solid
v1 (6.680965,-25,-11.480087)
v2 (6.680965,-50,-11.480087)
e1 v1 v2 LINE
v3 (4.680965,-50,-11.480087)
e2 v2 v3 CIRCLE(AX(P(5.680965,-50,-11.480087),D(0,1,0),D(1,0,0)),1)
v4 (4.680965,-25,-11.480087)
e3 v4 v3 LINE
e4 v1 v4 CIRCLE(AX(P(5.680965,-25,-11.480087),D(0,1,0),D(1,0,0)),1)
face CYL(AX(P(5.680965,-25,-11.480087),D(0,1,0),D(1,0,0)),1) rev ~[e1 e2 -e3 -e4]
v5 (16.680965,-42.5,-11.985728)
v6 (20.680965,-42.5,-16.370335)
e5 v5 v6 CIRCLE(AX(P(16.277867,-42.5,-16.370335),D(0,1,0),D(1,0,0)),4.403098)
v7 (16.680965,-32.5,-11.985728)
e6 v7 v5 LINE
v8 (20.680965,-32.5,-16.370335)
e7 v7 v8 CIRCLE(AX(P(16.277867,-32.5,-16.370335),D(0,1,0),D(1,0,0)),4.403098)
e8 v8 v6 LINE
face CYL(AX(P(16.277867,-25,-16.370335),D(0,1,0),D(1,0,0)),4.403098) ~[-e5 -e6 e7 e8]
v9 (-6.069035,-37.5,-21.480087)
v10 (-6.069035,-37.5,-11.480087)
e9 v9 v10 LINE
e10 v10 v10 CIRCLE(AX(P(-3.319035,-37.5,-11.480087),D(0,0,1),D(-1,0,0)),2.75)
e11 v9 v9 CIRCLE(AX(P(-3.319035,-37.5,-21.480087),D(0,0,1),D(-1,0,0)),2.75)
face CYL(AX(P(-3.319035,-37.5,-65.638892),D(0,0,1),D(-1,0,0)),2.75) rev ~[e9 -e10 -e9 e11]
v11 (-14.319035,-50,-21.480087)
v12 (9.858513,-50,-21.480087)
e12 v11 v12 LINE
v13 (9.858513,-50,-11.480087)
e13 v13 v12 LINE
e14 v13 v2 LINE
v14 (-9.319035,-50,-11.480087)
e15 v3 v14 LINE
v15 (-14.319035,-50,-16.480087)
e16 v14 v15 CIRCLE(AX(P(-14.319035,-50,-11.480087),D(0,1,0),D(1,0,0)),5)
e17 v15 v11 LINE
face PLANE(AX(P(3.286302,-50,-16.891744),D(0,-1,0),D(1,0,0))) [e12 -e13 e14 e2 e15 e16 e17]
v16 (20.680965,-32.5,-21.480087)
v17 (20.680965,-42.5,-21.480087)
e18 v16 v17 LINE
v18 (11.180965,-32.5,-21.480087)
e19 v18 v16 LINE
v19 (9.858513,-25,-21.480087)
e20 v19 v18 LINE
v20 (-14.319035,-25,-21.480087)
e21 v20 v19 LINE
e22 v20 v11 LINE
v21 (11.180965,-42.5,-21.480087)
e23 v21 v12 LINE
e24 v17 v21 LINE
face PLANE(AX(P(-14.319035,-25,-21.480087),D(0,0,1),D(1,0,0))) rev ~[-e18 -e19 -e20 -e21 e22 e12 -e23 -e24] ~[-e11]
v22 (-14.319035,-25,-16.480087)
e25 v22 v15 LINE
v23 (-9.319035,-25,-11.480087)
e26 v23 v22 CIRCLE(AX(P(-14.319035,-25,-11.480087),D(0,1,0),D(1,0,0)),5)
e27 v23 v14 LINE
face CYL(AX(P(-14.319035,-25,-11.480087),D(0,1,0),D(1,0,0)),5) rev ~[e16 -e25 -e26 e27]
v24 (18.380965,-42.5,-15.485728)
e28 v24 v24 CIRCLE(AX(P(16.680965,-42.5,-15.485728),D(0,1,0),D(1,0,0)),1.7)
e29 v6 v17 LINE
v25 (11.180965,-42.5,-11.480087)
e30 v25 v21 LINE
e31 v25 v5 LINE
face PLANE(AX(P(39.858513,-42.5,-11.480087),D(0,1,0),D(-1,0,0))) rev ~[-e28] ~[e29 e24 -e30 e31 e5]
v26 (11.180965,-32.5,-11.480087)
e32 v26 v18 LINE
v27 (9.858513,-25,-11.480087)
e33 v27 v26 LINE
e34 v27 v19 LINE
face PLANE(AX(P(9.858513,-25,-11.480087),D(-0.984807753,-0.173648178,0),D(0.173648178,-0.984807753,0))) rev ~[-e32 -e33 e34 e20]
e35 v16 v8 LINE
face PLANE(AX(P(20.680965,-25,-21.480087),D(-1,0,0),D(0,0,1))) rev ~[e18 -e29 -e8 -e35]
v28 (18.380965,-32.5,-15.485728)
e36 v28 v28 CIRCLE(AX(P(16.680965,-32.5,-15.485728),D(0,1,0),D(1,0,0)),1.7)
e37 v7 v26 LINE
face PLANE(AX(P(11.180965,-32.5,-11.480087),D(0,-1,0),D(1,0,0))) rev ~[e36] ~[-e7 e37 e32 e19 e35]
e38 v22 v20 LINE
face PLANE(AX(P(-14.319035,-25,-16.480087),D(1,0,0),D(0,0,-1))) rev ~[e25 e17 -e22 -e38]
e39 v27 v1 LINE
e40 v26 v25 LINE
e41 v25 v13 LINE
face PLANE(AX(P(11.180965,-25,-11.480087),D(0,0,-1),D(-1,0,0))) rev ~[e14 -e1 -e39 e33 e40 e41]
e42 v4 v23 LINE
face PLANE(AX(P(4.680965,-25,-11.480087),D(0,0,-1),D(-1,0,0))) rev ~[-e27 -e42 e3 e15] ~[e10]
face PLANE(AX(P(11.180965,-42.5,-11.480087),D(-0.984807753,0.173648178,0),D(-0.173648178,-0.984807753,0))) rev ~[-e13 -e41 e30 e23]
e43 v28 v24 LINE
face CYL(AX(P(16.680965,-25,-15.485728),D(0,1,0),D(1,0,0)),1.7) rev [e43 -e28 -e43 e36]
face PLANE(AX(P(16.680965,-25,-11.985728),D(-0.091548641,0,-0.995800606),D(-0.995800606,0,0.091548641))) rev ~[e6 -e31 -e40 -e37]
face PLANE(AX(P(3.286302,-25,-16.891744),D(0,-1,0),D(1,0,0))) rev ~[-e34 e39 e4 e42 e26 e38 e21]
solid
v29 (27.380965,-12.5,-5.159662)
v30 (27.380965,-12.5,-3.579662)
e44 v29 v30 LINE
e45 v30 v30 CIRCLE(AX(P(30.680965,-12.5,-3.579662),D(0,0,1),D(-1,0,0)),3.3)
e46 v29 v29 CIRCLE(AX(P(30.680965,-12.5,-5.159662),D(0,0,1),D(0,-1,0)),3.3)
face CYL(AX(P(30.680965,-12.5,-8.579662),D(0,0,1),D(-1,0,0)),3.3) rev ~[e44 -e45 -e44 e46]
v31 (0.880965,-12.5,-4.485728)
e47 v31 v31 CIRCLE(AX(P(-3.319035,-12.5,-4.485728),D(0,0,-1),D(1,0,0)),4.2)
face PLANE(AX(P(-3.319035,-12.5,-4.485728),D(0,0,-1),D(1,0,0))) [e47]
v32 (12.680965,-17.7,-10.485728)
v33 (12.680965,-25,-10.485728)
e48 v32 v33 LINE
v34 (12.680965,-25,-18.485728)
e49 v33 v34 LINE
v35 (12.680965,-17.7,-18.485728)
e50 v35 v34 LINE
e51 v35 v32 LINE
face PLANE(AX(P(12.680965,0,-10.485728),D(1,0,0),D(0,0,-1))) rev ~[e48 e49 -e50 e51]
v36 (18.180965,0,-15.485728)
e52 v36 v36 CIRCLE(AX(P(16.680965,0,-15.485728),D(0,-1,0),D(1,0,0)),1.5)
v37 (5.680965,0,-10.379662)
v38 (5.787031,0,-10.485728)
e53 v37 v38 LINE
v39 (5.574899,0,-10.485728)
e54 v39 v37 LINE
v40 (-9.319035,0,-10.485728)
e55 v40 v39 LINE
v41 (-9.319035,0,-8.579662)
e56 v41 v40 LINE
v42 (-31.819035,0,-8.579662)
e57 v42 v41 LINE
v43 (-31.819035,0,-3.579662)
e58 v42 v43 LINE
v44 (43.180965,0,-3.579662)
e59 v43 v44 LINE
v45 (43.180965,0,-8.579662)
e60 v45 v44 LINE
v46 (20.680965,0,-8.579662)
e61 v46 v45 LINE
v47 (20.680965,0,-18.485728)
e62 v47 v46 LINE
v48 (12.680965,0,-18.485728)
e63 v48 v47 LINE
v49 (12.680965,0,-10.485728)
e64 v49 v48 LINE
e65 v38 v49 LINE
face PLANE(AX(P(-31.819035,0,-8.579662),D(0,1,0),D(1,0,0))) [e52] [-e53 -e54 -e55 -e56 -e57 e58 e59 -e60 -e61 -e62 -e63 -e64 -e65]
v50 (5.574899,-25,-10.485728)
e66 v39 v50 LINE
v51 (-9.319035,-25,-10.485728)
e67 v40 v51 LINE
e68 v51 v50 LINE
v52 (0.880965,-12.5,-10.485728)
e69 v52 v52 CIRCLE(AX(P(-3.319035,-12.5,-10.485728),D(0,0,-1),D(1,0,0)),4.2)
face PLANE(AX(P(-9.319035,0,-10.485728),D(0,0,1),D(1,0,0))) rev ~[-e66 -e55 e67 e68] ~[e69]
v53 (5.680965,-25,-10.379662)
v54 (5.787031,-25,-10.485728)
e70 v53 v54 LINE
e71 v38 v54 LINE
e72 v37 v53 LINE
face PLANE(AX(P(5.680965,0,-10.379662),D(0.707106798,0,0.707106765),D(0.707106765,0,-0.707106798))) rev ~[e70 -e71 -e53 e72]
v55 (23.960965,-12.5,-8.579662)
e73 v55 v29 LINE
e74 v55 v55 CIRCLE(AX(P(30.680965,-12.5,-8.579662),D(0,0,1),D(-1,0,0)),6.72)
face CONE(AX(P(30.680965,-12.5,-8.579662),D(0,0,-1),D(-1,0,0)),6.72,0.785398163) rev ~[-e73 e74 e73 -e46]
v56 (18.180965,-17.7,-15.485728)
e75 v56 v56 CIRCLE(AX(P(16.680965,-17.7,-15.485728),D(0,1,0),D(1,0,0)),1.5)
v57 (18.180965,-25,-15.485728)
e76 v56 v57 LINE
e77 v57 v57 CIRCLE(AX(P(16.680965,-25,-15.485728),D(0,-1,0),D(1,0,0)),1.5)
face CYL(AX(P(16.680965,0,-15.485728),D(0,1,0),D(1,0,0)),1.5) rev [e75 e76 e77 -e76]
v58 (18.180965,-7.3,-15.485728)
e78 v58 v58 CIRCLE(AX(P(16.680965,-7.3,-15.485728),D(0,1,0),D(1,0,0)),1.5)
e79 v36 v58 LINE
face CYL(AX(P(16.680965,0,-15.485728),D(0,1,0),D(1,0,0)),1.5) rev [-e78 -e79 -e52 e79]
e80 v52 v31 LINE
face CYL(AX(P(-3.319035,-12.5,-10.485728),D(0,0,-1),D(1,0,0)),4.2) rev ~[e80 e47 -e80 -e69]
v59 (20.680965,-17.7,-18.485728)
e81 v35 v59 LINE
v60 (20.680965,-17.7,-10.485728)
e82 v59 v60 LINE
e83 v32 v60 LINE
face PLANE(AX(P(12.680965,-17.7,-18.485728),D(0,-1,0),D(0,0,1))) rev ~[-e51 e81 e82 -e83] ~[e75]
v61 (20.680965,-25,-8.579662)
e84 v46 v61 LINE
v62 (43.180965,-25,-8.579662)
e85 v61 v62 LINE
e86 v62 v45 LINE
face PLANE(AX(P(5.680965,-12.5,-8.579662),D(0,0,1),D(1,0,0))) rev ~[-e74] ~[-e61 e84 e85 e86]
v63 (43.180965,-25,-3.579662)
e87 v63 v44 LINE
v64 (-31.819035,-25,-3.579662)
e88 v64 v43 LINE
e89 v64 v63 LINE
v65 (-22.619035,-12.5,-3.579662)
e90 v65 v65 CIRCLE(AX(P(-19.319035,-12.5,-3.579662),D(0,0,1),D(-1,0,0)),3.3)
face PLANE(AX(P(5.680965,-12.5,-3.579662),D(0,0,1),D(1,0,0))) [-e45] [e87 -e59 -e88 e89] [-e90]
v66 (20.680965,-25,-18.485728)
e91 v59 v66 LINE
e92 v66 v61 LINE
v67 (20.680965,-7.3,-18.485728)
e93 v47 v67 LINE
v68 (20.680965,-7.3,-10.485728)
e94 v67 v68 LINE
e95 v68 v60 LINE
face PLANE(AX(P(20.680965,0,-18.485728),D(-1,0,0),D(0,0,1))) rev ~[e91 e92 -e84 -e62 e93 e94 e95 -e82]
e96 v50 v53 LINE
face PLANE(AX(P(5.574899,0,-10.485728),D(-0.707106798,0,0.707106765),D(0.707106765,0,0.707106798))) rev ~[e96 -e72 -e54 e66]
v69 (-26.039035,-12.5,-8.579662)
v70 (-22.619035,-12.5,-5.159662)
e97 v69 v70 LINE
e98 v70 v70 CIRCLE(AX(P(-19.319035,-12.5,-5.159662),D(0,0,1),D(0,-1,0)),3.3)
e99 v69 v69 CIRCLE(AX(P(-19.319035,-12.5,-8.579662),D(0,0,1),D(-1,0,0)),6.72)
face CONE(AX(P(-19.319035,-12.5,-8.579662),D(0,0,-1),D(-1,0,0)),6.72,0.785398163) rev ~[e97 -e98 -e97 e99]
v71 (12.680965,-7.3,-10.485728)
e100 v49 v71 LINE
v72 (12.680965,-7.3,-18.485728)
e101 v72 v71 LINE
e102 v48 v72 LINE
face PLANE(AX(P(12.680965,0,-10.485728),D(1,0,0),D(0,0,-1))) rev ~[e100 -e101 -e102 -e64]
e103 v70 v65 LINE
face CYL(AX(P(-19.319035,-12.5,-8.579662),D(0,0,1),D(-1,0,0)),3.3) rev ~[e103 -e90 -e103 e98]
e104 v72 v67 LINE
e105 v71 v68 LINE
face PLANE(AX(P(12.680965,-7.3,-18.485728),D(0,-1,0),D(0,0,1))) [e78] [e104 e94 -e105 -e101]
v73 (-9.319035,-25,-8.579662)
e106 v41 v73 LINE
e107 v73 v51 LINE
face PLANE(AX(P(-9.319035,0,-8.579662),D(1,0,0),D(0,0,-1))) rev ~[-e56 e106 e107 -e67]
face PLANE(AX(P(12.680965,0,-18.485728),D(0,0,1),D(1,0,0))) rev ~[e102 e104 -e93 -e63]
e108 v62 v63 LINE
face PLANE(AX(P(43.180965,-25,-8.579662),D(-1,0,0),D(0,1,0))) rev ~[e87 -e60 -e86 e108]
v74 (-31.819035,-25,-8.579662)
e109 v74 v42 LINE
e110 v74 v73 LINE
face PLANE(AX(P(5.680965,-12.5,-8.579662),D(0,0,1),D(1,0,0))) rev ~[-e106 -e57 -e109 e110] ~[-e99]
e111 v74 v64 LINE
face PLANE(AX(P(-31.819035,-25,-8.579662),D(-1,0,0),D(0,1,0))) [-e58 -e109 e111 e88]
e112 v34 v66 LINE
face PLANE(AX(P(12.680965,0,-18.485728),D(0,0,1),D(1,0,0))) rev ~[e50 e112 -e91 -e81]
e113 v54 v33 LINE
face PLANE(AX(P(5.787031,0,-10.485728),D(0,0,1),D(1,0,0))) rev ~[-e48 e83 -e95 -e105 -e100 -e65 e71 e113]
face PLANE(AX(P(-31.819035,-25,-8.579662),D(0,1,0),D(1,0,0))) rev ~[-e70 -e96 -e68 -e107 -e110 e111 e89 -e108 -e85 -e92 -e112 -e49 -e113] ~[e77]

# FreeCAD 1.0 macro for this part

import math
import FreeCAD as App
import Part
import Sketcher
from FreeCAD import Vector
Q = App.Units.Quantity


def add_polygon(sketch, points):
    """Adds a closed chain of lines whose ends are joined by coincident constraints."""
    first, n = sketch.GeometryCount, len(points)
    for a, b in zip(points, points[1:] + points[:1]):
        sketch.addGeometry(Part.LineSegment(App.Vector(*a, 0), App.Vector(*b, 0)), False)
    for i in range(n):
        sketch.addConstraint(Sketcher.Constraint("Coincident", first + i, 2, first + (i + 1) % n, 1))

doc = App.newDocument("Part")
body = doc.addObject("PartDesign::Body", "Body")

# Sketch on XZ plane
sketch1 = body.newObject("Sketcher::SketchObject", "Sketch")
sketch1.AttachmentSupport = (doc.getObject("XZ_Plane"), [""])
sketch1.MapMode = "FlatFace"
add_polygon(sketch1, [(5.787031, -10.485728), (12.680965, -10.485728), (12.680965, -18.485728), (20.680965, -18.485728), (20.680965, -8.579662), (-9.319035, -8.579662), (-9.319035, -10.485728), (5.574899, -10.485728), (5.680965, -10.379662)])  # lines 0-8
sketch1.addGeometry(Part.Circle(Vector(16.680965, -15.485728, 0), Vector(0, 0, 1), 1.5), False)  # 9
sketch1.addConstraint(Sketcher.Constraint("Horizontal", 0))
sketch1.addConstraint(Sketcher.Constraint("Vertical", 1))
sketch1.addConstraint(Sketcher.Constraint("Horizontal", 2))
sketch1.addConstraint(Sketcher.Constraint("Vertical", 3))
sketch1.addConstraint(Sketcher.Constraint("Horizontal", 4))
sketch1.addConstraint(Sketcher.Constraint("Vertical", 5))
sketch1.addConstraint(Sketcher.Constraint("Horizontal", 6))
sketch1.addConstraint(Sketcher.Constraint("Perpendicular", 7, 8))
sketch1.addConstraint(Sketcher.Constraint("Horizontal", 0, 2, 5, 2))
sketch1.addConstraint(Sketcher.Constraint("Equal", 2, 1))
sketch1.addConstraint(Sketcher.Constraint("Equal", 7, 8))
sketch1.addConstraint(Sketcher.Constraint("Diameter", 9, Q("3 mm")))
sketch1.addConstraint(Sketcher.Constraint("DistanceX", 2, 1, 2, 2, Q("8 mm")))
sketch1.addConstraint(Sketcher.Constraint("DistanceX", 4, 2, 4, 1, Q("30 mm")))
sketch1.addConstraint(Sketcher.Constraint("DistanceX", 0, 2, 9, 3, Q("4 mm")))
sketch1.addConstraint(Sketcher.Constraint("DistanceY", 9, 3, 0, 2, Q("5 mm")))
sketch1.addConstraint(Sketcher.Constraint("DistanceX", 7, 2, 0, 2, Q("7 mm")))
sketch1.addConstraint(Sketcher.Constraint("Distance", 7, Q("0.15 mm")))
sketch1.addConstraint(Sketcher.Constraint("DistanceX", -1, 1, 6, 2, Q("5.574899 mm")))
sketch1.addConstraint(Sketcher.Constraint("DistanceY", 3, 1, 3, 2, Q("9.906066 mm")))
sketch1.addConstraint(Sketcher.Constraint("DistanceY", 9, 3, -1, 1, Q("15.485728 mm")))
pad1 = body.newObject("PartDesign::Pad", "Pad")
pad1.Profile = sketch1
pad1.Length = 25

# Sketch on XY plane
sketch2 = body.newObject("Sketcher::SketchObject", "Sketch001")
sketch2.AttachmentSupport = (doc.getObject("XY_Plane"), [""])
sketch2.MapMode = "FlatFace"
sketch2.AttachmentOffset = App.Placement(Vector(0, 0, -8.579662), App.Rotation())
add_polygon(sketch2, [(-31.819035, 0), (-31.819035, -25), (43.180965, -25), (43.180965, 0)])  # lines 0-3
sketch2.addConstraint(Sketcher.Constraint("Vertical", 0))
sketch2.addConstraint(Sketcher.Constraint("Horizontal", 1))
sketch2.addConstraint(Sketcher.Constraint("Vertical", 2))
sketch2.addConstraint(Sketcher.Constraint("Horizontal", 3))
sketch2.addConstraint(Sketcher.Constraint("PointOnObject", 2, 2, -1))
sketch2.addConstraint(Sketcher.Constraint("DistanceX", 1, 1, 1, 2, Q("75 mm")))
sketch2.addConstraint(Sketcher.Constraint("DistanceY", 0, 2, 0, 1, Q("25 mm")))
sketch2.addConstraint(Sketcher.Constraint("DistanceX", 0, 2, -1, 1, Q("31.819035 mm")))
pad2 = body.newObject("PartDesign::Pad", "Pad001")
pad2.Profile = sketch2
pad2.Length = 5

# Sketch on XY plane
sketch3 = body.newObject("Sketcher::SketchObject", "Sketch002")
sketch3.AttachmentSupport = (doc.getObject("XY_Plane"), [""])
sketch3.MapMode = "FlatFace"
sketch3.AttachmentOffset = App.Placement(Vector(0, 0, -10.485728), App.Rotation())
sketch3.addGeometry(Part.Circle(Vector(-3.319035, -12.5, 0), Vector(0, 0, 1), 4.2), False)
sketch3.addConstraint(Sketcher.Constraint("Diameter", 0, Q("8.4 mm")))
sketch3.addConstraint(Sketcher.Constraint("DistanceY", 0, 3, -1, 1, Q("12.5 mm")))
sketch3.addConstraint(Sketcher.Constraint("DistanceX", 0, 3, -1, 1, Q("3.319035 mm")))
pocket1 = body.newObject("PartDesign::Pocket", "Pocket")
pocket1.Profile = sketch3
pocket1.Length = 6
pocket1.Reversed = True

# Sketch on XY plane
sketch4 = body.newObject("Sketcher::SketchObject", "Sketch003")
sketch4.AttachmentSupport = (doc.getObject("XY_Plane"), [""])
sketch4.MapMode = "FlatFace"
sketch4.AttachmentOffset = App.Placement(Vector(0, 0, -8.579662), App.Rotation())
sketch4.addGeometry(Part.Circle(Vector(30.680965, -12.5, 0), Vector(0, 0, 1), 3.3), False)
sketch4.addGeometry(Part.Circle(Vector(-19.319035, -12.5, 0), Vector(0, 0, 1), 3.3), False)
sketch4.addConstraint(Sketcher.Constraint("Equal", 0, 1))
sketch4.addConstraint(Sketcher.Constraint("Horizontal", 0, 3, 1, 3))
sketch4.addConstraint(Sketcher.Constraint("Diameter", 0, Q("6.6 mm")))
sketch4.addConstraint(Sketcher.Constraint("DistanceX", 1, 3, 0, 3, Q("50 mm")))
sketch4.addConstraint(Sketcher.Constraint("DistanceY", 0, 3, -1, 1, Q("12.5 mm")))
sketch4.addConstraint(Sketcher.Constraint("DistanceX", -1, 1, 0, 3, Q("30.680965 mm")))
doc.recompute()
hole = body.newObject("PartDesign::Hole", "Hole")
hole.Profile = sketch4
hole.ThreadType = "None"
hole.Diameter = 6.6
hole.DepthType = "ThroughAll"
hole.HoleCutType = "Countersink"
hole.HoleCutDiameter = 13.44
hole.HoleCutCountersinkAngle = 90
hole.Reversed = True

# Sketch on YZ plane
sketch5 = body.newObject("Sketcher::SketchObject", "Sketch004")
sketch5.AttachmentSupport = (doc.getObject("YZ_Plane"), [""])
sketch5.MapMode = "FlatFace"
sketch5.AttachmentOffset = App.Placement(Vector(0, 0, 12.680965), App.Rotation())
add_polygon(sketch5, [(-7.3, -10.485728), (-7.3, -18.485728), (-17.7, -18.485728), (-17.7, -10.485728)])  # lines 0-3
sketch5.addConstraint(Sketcher.Constraint("Vertical", 0))
sketch5.addConstraint(Sketcher.Constraint("Horizontal", 1))
sketch5.addConstraint(Sketcher.Constraint("Vertical", 2))
sketch5.addConstraint(Sketcher.Constraint("Horizontal", 3))
sketch5.addConstraint(Sketcher.Constraint("DistanceY", 0, 2, 0, 1, Q("8 mm")))
sketch5.addConstraint(Sketcher.Constraint("DistanceX", 1, 2, 1, 1, Q("10.4 mm")))
sketch5.addConstraint(Sketcher.Constraint("DistanceX", 0, 2, -1, 1, Q("7.3 mm")))
sketch5.addConstraint(Sketcher.Constraint("DistanceY", 0, 2, -1, 1, Q("18.485728 mm")))
pocket2 = body.newObject("PartDesign::Pocket", "Pocket001")
pocket2.Profile = sketch5
pocket2.Length = 25
pocket2.Reversed = True
body2 = doc.addObject("PartDesign::Body", "Body001")

# Sketch on XZ plane
sketch6 = body2.newObject("Sketcher::SketchObject", "Sketch005")
sketch6.AttachmentSupport = (doc.getObject("XZ_Plane001"), [""])
sketch6.MapMode = "FlatFace"
sketch6.AttachmentOffset = App.Placement(Vector(0, 0, 25), App.Rotation())
sketch6.addGeometry(Part.ArcOfCircle(Part.Circle(Vector(5.680965, -11.480087, 0), Vector(0, 0, 1), 1), math.radians(180), math.radians(360)), False)
sketch6.addGeometry(Part.LineSegment(Vector(4.680965, -11.480087, 0), Vector(-9.319035, -11.480087, 0)), False)
sketch6.addGeometry(Part.ArcOfCircle(Part.Circle(Vector(-14.319035, -11.480087, 0), Vector(0, 0, 1), 5), math.radians(-90), math.radians(0)), False)
sketch6.addGeometry(Part.LineSegment(Vector(-14.319035, -16.480087, 0), Vector(-14.319035, -21.480087, 0)), False)
sketch6.addGeometry(Part.LineSegment(Vector(-14.319035, -21.480087, 0), Vector(20.680965, -21.480087, 0)), False)
sketch6.addGeometry(Part.LineSegment(Vector(20.680965, -21.480087, 0), Vector(20.680965, -16.370335, 0)), False)
sketch6.addGeometry(Part.ArcOfCircle(Part.Circle(Vector(16.277867, -16.370335, 0), Vector(0, 0, 1), 4.403098), math.radians(0), math.radians(84.747294)), False)
sketch6.addGeometry(Part.LineSegment(Vector(16.680965, -11.985728, 0), Vector(11.180965, -11.480087, 0)), False)
sketch6.addGeometry(Part.LineSegment(Vector(11.180965, -11.480087, 0), Vector(6.680965, -11.480087, 0)), False)
sketch6.addGeometry(Part.Circle(Vector(16.680965, -15.485728, 0), Vector(0, 0, 1), 1.7), False)
sketch6.addConstraint(Sketcher.Constraint("Coincident", 0, 1, 1, 1))
sketch6.addConstraint(Sketcher.Constraint("Coincident", 1, 2, 2, 2))
sketch6.addConstraint(Sketcher.Constraint("Coincident", 2, 1, 3, 1))
sketch6.addConstraint(Sketcher.Constraint("Coincident", 3, 2, 4, 1))
sketch6.addConstraint(Sketcher.Constraint("Coincident", 4, 2, 5, 1))
sketch6.addConstraint(Sketcher.Constraint("Tangent", 5, 2, 6, 1))
sketch6.addConstraint(Sketcher.Constraint("Tangent", 6, 2, 7, 1))
sketch6.addConstraint(Sketcher.Constraint("Coincident", 7, 2, 8, 1))
sketch6.addConstraint(Sketcher.Constraint("Coincident", 8, 2, 0, 2))
sketch6.addConstraint(Sketcher.Constraint("Horizontal", 1))
sketch6.addConstraint(Sketcher.Constraint("Vertical", 3))
sketch6.addConstraint(Sketcher.Constraint("Horizontal", 4))
sketch6.addConstraint(Sketcher.Constraint("Vertical", 5))
sketch6.addConstraint(Sketcher.Constraint("Horizontal", 8))
sketch6.addConstraint(Sketcher.Constraint("Horizontal", 0, 3, 2, 3))
sketch6.addConstraint(Sketcher.Constraint("Horizontal", 2, 3, 0, 1))
sketch6.addConstraint(Sketcher.Constraint("Horizontal", 1, 2, 7, 2))
sketch6.addConstraint(Sketcher.Constraint("Vertical", 9, 3, 6, 2))
sketch6.addConstraint(Sketcher.Constraint("Radius", 0, Q("1 mm")))
sketch6.addConstraint(Sketcher.Constraint("Radius", 2, Q("5 mm")))
sketch6.addConstraint(Sketcher.Constraint("Diameter", 9, Q("3.4 mm")))
sketch6.addConstraint(Sketcher.Constraint("DistanceX", 1, 2, 1, 1, Q("14 mm")))
sketch6.addConstraint(Sketcher.Constraint("DistanceX", 4, 1, 4, 2, Q("35 mm")))
sketch6.addConstraint(Sketcher.Constraint("DistanceY", 3, 2, 3, 1, Q("5 mm")))
sketch6.addConstraint(Sketcher.Constraint("DistanceX", 8, 2, 8, 1, Q("4.5 mm")))
sketch6.addConstraint(Sketcher.Constraint("DistanceX", 0, 3, 9, 3, Q("11 mm")))
sketch6.addConstraint(Sketcher.Constraint("DistanceX", 2, 1, 1, 2, Q("5 mm")))
sketch6.addConstraint(Sketcher.Constraint("DistanceY", 9, 3, 6, 2, Q("3.5 mm")))
sketch6.addConstraint(Sketcher.Constraint("Radius", 6, Q("4.403098 mm")))
sketch6.addConstraint(Sketcher.Constraint("DistanceY", 9, 3, -1, 1, Q("15.485728 mm")))
sketch6.addConstraint(Sketcher.Constraint("DistanceX", -1, 1, 0, 3, Q("5.680965 mm")))
pad3 = body2.newObject("PartDesign::Pad", "Pad002")
pad3.Profile = sketch6
pad3.Length = 25

# Sketch on XY plane
sketch7 = body2.newObject("Sketcher::SketchObject", "Sketch006")
sketch7.AttachmentSupport = (doc.getObject("XY_Plane001"), [""])
sketch7.MapMode = "FlatFace"
sketch7.AttachmentOffset = App.Placement(Vector(0, 0, -21.480087), App.Rotation())
sketch7.addGeometry(Part.Circle(Vector(-3.319035, -37.5, 0), Vector(0, 0, 1), 2.75), False)
sketch7.addConstraint(Sketcher.Constraint("Diameter", 0, Q("5.5 mm")))
sketch7.addConstraint(Sketcher.Constraint("DistanceY", 0, 3, -1, 1, Q("37.5 mm")))
sketch7.addConstraint(Sketcher.Constraint("DistanceX", 0, 3, -1, 1, Q("3.319035 mm")))
doc.recompute()
hole2 = body2.newObject("PartDesign::Hole", "Hole001")
hole2.Profile = sketch7
hole2.ThreadType = "None"
hole2.Diameter = 5.5
hole2.DepthType = "ThroughAll"
hole2.Reversed = True

# Sketch on XY plane
sketch8 = body2.newObject("Sketcher::SketchObject", "Sketch007")
sketch8.AttachmentSupport = (doc.getObject("XY_Plane001"), [""])
sketch8.MapMode = "FlatFace"
sketch8.AttachmentOffset = App.Placement(Vector(0, 0, -11.480087), App.Rotation())
add_polygon(sketch8, [(39.858513, -25), (9.858513, -25), (11.180965, -32.5), (39.858513, -32.5)])  # lines 0-3
add_polygon(sketch8, [(11.180965, -42.5), (9.858513, -50), (39.858513, -50), (39.858513, -42.5)])  # lines 4-7
sketch8.addConstraint(Sketcher.Constraint("Horizontal", 0))
sketch8.addConstraint(Sketcher.Constraint("Horizontal", 2))
sketch8.addConstraint(Sketcher.Constraint("Vertical", 3))
sketch8.addConstraint(Sketcher.Constraint("Horizontal", 5))
sketch8.addConstraint(Sketcher.Constraint("Vertical", 6))
sketch8.addConstraint(Sketcher.Constraint("Horizontal", 7))
sketch8.addConstraint(Sketcher.Constraint("Vertical", 0, 2, 4, 2))
sketch8.addConstraint(Sketcher.Constraint("Vertical", 3, 2, 5, 2))
sketch8.addConstraint(Sketcher.Constraint("Vertical", 1, 2, 7, 2))
sketch8.addConstraint(Sketcher.Constraint("Equal", 3, 6))
sketch8.addConstraint(Sketcher.Constraint("DistanceX", 0, 2, 0, 1, Q("30 mm")))
sketch8.addConstraint(Sketcher.Constraint("Angle", 1, Q("-80 deg")))
sketch8.addConstraint(Sketcher.Constraint("DistanceY", 3, 1, 3, 2, Q("7.5 mm")))
sketch8.addConstraint(Sketcher.Constraint("DistanceY", 0, 2, -1, 1, Q("25 mm")))
sketch8.addConstraint(Sketcher.Constraint("DistanceY", 4, 2, -1, 1, Q("50 mm")))
sketch8.addConstraint(Sketcher.Constraint("DistanceX", -1, 1, 0, 2, Q("9.858513 mm")))
pocket3 = body2.newObject("PartDesign::Pocket", "Pocket002")
pocket3.Profile = sketch8
pocket3.Type = "ThroughAll"

doc.recompute()
